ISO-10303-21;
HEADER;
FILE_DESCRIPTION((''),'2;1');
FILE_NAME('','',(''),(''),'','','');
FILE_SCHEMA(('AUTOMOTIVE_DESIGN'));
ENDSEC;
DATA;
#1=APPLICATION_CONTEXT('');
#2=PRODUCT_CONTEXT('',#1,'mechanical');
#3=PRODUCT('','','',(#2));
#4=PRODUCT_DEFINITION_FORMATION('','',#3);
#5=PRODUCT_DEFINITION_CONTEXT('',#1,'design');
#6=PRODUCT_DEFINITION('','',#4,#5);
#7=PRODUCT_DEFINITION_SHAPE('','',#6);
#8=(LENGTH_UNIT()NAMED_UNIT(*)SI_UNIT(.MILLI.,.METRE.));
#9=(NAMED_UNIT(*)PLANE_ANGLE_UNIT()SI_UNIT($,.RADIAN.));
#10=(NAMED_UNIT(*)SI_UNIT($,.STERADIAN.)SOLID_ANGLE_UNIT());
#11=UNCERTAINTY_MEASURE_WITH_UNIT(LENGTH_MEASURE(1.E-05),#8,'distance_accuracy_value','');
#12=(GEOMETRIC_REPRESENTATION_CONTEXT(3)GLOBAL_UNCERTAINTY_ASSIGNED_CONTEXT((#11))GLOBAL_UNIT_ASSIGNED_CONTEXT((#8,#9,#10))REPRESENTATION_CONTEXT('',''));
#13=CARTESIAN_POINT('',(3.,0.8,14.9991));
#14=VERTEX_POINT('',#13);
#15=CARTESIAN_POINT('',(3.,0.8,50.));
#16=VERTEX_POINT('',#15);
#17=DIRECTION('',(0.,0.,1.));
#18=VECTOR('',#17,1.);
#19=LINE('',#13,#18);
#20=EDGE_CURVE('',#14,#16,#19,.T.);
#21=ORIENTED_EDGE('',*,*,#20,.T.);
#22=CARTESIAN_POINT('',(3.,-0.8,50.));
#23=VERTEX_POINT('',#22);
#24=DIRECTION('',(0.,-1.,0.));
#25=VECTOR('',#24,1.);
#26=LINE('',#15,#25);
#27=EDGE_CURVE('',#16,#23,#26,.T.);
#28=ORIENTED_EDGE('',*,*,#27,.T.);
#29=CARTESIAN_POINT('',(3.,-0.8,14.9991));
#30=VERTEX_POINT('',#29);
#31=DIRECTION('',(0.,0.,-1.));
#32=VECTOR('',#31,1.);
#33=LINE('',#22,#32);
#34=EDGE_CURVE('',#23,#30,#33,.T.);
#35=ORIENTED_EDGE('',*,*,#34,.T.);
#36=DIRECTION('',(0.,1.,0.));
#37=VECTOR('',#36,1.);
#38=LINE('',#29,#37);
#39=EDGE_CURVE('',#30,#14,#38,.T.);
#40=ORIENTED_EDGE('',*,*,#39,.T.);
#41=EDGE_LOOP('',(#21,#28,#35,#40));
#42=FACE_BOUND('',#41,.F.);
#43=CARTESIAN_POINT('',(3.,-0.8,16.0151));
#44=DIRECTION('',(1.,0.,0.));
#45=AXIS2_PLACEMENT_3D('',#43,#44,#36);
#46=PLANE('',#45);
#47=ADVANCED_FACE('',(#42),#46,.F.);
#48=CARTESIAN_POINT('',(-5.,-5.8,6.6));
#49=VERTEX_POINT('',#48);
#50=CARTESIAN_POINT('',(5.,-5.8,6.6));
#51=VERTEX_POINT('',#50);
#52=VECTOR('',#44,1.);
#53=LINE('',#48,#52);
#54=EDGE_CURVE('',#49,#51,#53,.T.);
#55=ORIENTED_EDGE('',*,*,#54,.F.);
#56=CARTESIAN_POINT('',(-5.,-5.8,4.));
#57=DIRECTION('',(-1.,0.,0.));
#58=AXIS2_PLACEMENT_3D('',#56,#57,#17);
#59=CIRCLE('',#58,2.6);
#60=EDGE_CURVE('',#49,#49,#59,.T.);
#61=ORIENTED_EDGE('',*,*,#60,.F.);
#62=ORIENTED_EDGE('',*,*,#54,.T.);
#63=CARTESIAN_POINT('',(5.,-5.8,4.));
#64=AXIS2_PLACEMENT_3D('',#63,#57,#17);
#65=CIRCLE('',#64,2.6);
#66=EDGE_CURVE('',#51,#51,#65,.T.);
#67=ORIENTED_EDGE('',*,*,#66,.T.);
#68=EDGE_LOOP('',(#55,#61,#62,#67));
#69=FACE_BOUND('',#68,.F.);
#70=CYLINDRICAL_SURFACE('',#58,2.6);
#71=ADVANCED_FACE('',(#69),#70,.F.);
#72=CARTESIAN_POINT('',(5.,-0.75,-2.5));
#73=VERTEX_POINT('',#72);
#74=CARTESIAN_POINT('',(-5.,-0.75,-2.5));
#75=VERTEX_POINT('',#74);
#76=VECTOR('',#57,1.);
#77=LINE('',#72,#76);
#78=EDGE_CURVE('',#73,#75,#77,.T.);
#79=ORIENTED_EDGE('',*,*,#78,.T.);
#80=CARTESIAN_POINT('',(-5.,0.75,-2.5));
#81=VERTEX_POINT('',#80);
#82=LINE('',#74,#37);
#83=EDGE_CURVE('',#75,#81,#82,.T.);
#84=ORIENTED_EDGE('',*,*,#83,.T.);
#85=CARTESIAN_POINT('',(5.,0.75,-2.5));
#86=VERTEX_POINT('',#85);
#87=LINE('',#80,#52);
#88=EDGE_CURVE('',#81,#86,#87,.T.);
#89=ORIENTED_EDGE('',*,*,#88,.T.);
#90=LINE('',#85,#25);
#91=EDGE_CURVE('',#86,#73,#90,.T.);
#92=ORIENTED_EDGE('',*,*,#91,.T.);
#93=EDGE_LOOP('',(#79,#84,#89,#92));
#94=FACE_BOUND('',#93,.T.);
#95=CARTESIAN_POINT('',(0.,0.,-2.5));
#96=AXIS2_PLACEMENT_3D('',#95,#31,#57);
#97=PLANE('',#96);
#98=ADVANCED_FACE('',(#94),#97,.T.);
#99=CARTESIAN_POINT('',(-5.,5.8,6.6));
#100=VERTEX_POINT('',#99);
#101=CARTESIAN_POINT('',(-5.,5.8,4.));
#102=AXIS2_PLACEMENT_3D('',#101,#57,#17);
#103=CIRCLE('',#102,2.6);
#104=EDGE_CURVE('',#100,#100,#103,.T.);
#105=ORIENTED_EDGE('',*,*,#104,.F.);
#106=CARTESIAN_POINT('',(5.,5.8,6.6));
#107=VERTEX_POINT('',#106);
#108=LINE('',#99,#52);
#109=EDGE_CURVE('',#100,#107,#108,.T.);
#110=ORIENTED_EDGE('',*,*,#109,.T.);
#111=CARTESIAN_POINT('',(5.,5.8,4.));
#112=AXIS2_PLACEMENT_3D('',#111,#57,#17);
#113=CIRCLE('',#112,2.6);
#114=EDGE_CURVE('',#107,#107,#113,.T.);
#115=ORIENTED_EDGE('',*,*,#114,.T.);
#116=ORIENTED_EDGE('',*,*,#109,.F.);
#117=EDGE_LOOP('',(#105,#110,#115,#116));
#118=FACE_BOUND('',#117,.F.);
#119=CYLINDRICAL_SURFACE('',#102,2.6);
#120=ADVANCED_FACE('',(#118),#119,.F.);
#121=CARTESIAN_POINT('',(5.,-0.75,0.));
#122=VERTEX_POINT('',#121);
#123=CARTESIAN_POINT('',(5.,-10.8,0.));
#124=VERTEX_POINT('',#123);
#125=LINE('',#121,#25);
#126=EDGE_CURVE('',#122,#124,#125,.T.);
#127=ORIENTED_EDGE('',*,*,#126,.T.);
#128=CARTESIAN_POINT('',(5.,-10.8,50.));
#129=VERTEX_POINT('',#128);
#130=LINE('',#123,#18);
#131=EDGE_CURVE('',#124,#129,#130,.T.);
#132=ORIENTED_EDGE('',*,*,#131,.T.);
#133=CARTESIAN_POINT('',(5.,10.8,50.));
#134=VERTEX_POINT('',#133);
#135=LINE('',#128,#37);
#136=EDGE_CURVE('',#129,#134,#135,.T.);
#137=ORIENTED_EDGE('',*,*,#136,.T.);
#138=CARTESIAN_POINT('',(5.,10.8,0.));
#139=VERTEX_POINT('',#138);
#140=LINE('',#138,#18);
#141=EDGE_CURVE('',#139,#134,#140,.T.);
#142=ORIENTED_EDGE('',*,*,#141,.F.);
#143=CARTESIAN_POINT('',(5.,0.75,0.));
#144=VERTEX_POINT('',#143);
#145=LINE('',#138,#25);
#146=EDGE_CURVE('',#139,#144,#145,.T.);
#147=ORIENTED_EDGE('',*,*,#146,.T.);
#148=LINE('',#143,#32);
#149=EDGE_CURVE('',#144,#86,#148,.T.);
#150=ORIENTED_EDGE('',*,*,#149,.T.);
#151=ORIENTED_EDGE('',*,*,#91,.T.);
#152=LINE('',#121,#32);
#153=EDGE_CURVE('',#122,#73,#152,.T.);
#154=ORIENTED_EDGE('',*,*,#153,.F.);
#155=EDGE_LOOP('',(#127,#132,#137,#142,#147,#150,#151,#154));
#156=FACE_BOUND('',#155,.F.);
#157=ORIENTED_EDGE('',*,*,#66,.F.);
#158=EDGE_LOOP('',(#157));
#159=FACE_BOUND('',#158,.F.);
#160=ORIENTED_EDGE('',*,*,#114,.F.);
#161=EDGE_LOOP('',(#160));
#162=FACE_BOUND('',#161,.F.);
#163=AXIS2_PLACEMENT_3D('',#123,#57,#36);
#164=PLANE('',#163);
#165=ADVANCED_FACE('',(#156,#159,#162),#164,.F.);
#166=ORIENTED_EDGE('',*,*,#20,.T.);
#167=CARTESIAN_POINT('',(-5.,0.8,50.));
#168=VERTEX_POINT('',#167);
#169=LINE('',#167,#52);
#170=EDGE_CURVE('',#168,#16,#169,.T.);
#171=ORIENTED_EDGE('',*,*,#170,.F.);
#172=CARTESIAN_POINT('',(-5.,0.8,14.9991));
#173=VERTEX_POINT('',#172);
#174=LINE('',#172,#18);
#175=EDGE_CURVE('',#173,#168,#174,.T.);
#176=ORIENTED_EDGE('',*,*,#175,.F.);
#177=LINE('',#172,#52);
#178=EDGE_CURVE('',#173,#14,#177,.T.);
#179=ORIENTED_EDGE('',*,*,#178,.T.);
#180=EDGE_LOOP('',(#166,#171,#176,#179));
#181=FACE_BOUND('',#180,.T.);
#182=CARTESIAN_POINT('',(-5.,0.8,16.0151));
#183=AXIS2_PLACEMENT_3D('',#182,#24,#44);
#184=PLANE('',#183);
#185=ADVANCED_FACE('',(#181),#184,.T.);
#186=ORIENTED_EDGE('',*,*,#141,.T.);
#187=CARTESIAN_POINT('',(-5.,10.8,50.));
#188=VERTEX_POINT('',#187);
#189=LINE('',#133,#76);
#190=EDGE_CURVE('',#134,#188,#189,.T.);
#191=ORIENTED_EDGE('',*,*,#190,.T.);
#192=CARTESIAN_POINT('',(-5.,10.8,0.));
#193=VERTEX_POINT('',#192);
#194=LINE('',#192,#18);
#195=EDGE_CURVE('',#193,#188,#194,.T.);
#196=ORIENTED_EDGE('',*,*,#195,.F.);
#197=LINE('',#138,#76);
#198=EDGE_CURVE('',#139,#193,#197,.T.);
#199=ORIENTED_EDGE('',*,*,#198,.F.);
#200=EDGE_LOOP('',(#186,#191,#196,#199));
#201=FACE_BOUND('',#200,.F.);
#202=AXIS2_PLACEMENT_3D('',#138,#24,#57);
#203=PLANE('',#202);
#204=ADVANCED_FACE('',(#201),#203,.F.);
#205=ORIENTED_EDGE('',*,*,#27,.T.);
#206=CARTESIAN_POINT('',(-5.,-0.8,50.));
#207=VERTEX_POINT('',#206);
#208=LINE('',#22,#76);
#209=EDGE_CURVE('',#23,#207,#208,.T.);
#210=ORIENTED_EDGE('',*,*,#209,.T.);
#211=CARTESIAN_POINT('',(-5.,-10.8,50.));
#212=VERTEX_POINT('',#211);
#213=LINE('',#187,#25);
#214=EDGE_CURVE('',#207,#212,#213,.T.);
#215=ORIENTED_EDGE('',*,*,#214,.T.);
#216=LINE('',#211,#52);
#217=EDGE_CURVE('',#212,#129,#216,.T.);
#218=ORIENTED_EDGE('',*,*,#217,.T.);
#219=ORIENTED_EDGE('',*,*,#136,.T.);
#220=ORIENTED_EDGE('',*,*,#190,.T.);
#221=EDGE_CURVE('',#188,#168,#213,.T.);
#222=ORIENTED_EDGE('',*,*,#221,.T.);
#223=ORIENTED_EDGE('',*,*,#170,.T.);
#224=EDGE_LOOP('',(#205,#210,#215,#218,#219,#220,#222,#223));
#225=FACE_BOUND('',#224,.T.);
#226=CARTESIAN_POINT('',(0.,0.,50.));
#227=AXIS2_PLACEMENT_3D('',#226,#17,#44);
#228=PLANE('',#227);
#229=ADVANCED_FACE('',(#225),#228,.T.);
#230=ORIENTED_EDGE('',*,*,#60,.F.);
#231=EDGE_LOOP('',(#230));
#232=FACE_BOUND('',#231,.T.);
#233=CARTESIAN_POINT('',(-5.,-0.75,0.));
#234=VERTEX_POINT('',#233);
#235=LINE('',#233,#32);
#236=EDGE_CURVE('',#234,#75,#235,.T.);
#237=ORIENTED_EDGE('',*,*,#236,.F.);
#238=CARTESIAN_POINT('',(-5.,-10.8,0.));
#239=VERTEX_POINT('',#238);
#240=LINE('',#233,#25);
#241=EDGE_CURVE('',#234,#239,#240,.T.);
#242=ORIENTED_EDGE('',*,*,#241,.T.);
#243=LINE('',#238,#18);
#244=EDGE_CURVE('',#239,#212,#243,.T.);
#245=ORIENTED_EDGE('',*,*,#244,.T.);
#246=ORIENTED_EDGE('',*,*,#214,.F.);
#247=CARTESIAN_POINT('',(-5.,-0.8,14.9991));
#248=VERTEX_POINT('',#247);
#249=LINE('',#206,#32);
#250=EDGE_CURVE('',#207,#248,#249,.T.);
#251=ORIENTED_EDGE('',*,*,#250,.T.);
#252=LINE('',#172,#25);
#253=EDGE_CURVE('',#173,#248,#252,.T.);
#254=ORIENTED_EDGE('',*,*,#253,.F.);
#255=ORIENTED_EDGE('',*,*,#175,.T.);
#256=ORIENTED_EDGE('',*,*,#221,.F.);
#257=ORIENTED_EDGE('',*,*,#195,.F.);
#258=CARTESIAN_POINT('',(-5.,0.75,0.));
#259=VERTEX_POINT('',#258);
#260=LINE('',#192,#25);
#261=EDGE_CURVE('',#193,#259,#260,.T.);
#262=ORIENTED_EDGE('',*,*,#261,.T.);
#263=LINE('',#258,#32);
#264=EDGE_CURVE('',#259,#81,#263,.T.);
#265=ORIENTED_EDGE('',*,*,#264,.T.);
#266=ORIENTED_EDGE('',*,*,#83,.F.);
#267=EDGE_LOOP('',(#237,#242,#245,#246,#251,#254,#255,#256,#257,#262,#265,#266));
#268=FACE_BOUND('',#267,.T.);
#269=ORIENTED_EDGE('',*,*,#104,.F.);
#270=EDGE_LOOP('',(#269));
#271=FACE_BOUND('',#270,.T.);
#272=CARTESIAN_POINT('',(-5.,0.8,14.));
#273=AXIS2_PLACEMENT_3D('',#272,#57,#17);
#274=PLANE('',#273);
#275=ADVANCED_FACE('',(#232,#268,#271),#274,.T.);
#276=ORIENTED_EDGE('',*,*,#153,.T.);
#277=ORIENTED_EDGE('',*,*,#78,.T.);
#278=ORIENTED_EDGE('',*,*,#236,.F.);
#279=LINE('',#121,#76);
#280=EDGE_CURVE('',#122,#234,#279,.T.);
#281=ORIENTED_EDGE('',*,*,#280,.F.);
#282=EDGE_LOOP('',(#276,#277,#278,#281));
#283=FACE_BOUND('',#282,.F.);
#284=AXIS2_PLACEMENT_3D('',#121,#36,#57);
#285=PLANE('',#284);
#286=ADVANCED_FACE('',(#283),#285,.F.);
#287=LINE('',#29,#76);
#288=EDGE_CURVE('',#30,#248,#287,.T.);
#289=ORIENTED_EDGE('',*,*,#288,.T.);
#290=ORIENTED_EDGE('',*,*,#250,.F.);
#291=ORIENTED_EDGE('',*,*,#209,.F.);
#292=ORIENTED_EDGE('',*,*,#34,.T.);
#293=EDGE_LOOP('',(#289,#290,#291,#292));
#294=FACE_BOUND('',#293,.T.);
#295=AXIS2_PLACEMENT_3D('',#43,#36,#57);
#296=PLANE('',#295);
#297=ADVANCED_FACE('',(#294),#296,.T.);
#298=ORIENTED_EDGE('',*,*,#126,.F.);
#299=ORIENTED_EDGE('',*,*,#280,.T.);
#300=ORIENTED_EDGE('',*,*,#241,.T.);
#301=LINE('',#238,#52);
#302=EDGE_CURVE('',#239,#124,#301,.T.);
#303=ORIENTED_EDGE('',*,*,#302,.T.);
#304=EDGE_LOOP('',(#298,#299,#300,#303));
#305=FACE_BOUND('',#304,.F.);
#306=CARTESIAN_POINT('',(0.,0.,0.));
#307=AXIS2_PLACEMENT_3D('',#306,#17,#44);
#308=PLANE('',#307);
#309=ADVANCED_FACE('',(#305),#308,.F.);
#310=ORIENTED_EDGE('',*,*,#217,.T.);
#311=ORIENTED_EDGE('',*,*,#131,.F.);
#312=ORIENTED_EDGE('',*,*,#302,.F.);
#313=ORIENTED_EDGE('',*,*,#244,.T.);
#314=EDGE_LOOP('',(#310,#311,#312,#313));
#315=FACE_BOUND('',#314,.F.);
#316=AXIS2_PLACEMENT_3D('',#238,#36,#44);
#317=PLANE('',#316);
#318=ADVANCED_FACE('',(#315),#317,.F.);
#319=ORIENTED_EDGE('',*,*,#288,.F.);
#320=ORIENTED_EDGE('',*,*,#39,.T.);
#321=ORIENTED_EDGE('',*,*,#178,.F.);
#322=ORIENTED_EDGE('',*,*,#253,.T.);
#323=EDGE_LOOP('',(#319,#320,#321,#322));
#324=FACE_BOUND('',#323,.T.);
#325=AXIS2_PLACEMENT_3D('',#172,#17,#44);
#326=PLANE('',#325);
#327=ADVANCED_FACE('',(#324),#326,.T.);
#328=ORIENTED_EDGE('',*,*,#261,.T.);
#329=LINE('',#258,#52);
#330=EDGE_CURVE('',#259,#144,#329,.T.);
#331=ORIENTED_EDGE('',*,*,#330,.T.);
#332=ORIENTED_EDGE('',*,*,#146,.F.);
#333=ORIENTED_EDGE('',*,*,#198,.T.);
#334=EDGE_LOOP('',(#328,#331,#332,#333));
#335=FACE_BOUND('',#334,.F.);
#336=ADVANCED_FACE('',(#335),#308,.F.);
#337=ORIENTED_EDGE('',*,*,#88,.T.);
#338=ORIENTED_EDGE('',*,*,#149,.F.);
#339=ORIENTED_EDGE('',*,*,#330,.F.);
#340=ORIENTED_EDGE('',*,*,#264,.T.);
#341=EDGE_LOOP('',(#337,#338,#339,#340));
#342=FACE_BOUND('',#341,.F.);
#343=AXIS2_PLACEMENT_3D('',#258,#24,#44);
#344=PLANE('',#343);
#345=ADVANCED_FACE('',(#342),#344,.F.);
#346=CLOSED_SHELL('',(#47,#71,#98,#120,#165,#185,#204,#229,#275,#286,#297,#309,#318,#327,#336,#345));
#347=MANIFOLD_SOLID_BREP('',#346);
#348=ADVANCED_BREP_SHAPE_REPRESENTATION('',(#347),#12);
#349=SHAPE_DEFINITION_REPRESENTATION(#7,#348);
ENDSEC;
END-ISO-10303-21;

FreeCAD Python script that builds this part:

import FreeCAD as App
import Part
import Sketcher
Q = App.Units.Quantity

doc = App.newDocument("Part")
body = doc.addObject("PartDesign::Body", "Body")

sketch1 = body.newObject("Sketcher::SketchObject", "Sketch")
sketch1.AttachmentSupport = (doc.getObject("XY_Plane"), [""])
sketch1.MapMode = "FlatFace"
sketch1.addGeometry([
    Part.LineSegment(App.Vector(-5, 10.8, 0), App.Vector(-5, -10.8, 0)),
    Part.LineSegment(App.Vector(-5, -10.8, 0), App.Vector(5, -10.8, 0)),
    Part.LineSegment(App.Vector(5, -10.8, 0), App.Vector(5, 10.8, 0)),
    Part.LineSegment(App.Vector(5, 10.8, 0), App.Vector(-5, 10.8, 0)),
], False)
sketch1.addConstraint([
    Sketcher.Constraint("Coincident", 0, 2, 1, 1),
    Sketcher.Constraint("Coincident", 1, 2, 2, 1),
    Sketcher.Constraint("Coincident", 2, 2, 3, 1),
    Sketcher.Constraint("Coincident", 3, 2, 0, 1),
    Sketcher.Constraint("Vertical", 0),
    Sketcher.Constraint("Horizontal", 1),
    Sketcher.Constraint("Vertical", 2),
    Sketcher.Constraint("Horizontal", 3),
    Sketcher.Constraint("Symmetric", 0, 2, 2, 2, -1, 1),
    Sketcher.Constraint("DistanceX", 1, 1, 1, 2, Q("10 mm")),
    Sketcher.Constraint("DistanceY", 0, 2, 0, 1, Q("21.6 mm")),
])
pad1 = body.newObject("PartDesign::Pad", "Pad")
pad1.Profile = sketch1
pad1.Length = 50

sketch2 = body.newObject("Sketcher::SketchObject", "Sketch001")
sketch2.AttachmentSupport = (doc.getObject("XY_Plane"), [""])
sketch2.MapMode = "FlatFace"
sketch2.AttachmentOffset = App.Placement(App.Vector(0, 0, 50), App.Rotation())
sketch2.addGeometry([
    Part.LineSegment(App.Vector(3, 0.8, 0), App.Vector(-5, 0.8, 0)),
    Part.LineSegment(App.Vector(-5, 0.8, 0), App.Vector(-5, -0.8, 0)),
    Part.LineSegment(App.Vector(-5, -0.8, 0), App.Vector(3, -0.8, 0)),
    Part.LineSegment(App.Vector(3, -0.8, 0), App.Vector(3, 0.8, 0)),
], False)
sketch2.addConstraint([
    Sketcher.Constraint("Coincident", 0, 2, 1, 1),
    Sketcher.Constraint("Coincident", 1, 2, 2, 1),
    Sketcher.Constraint("Coincident", 2, 2, 3, 1),
    Sketcher.Constraint("Coincident", 3, 2, 0, 1),
    Sketcher.Constraint("Horizontal", 0),
    Sketcher.Constraint("Vertical", 1),
    Sketcher.Constraint("Horizontal", 2),
    Sketcher.Constraint("Vertical", 3),
    Sketcher.Constraint("DistanceY", 1, 2, 1, 1, Q("1.6 mm")),
    Sketcher.Constraint("DistanceY", -1, 1, 0, 2, Q("0.8 mm")),
    Sketcher.Constraint("DistanceX", 0, 2, 0, 1, Q("8 mm")),
    Sketcher.Constraint("DistanceX", 0, 2, -1, 1, Q("5 mm")),
])
pocket1 = body.newObject("PartDesign::Pocket", "Pocket")
pocket1.Profile = sketch2
pocket1.Length = 36

sketch3 = body.newObject("Sketcher::SketchObject", "Sketch002")
sketch3.AttachmentSupport = (doc.getObject("YZ_Plane"), [""])
sketch3.MapMode = "FlatFace"
sketch3.AttachmentOffset = App.Placement(App.Vector(0, 0, -5), App.Rotation())
sketch3.addGeometry([
    Part.Circle(App.Vector(5.8, 4, 0), App.Vector(0, 0, 1), 2.6),
    Part.Circle(App.Vector(-5.8, 4, 0), App.Vector(0, 0, 1), 2.6),
], False)
sketch3.addConstraint([
    Sketcher.Constraint("Equal", 0, 1),
    Sketcher.Constraint("Symmetric", 0, 3, 1, 3, -2),
    Sketcher.Constraint("Diameter", 0, Q("5.2 mm")),
    Sketcher.Constraint("DistanceY", -1, 1, 0, 3, Q("4 mm")),
    Sketcher.Constraint("DistanceX", -1, 1, 0, 3, Q("5.8 mm")),
])
pocket2 = body.newObject("PartDesign::Pocket", "Pocket001")
pocket2.Profile = sketch3
pocket2.Length = 35
pocket2.Reversed = True

sketch4 = body.newObject("Sketcher::SketchObject", "Sketch003")
sketch4.AttachmentSupport = (doc.getObject("XY_Plane"), [""])
sketch4.MapMode = "FlatFace"
sketch4.addGeometry([
    Part.LineSegment(App.Vector(5, 0.75, 0), App.Vector(5, -0.75, 0)),
    Part.LineSegment(App.Vector(5, -0.75, 0), App.Vector(-5, -0.75, 0)),
    Part.LineSegment(App.Vector(-5, -0.75, 0), App.Vector(-5, 0.75, 0)),
    Part.LineSegment(App.Vector(-5, 0.75, 0), App.Vector(5, 0.75, 0)),
], False)
sketch4.addConstraint([
    Sketcher.Constraint("Coincident", 0, 2, 1, 1),
    Sketcher.Constraint("Coincident", 1, 2, 2, 1),
    Sketcher.Constraint("Coincident", 2, 2, 3, 1),
    Sketcher.Constraint("Coincident", 3, 2, 0, 1),
    Sketcher.Constraint("Vertical", 0),
    Sketcher.Constraint("Horizontal", 1),
    Sketcher.Constraint("Vertical", 2),
    Sketcher.Constraint("Horizontal", 3),
    Sketcher.Constraint("Symmetric", 0, 2, 2, 2, -1, 1),
    Sketcher.Constraint("DistanceX", 1, 2, 1, 1, Q("10 mm")),
    Sketcher.Constraint("DistanceY", 0, 2, 0, 1, Q("1.5 mm")),
])
pad2 = body.newObject("PartDesign::Pad", "Pad001")
pad2.Profile = sketch4
pad2.Length = 2.5
pad2.Reversed = True

sketch5 = body.newObject("Sketcher::SketchObject", "Sketch004")
sketch5.AttachmentSupport = (doc.getObject("XZ_Plane"), [""])
sketch5.MapMode = "FlatFace"
sketch5.AttachmentOffset = App.Placement(App.Vector(0, 0, -0.8), App.Rotation())
sketch5.addGeometry([
    Part.LineSegment(App.Vector(-5, 16.0151, 0), App.Vector(-5, 0, 0)),
    Part.LineSegment(App.Vector(-5, 0, 0), App.Vector(5, 0, 0)),
    Part.LineSegment(App.Vector(5, 0, 0), App.Vector(5, 16.0151, 0)),
    Part.LineSegment(App.Vector(5, 16.0151, 0), App.Vector(-5, 16.0151, 0)),
], False)
sketch5.addConstraint([
    Sketcher.Constraint("Coincident", 0, 2, 1, 1),
    Sketcher.Constraint("Coincident", 1, 2, 2, 1),
    Sketcher.Constraint("Coincident", 2, 2, 3, 1),
    Sketcher.Constraint("Coincident", 3, 2, 0, 1),
    Sketcher.Constraint("Vertical", 0),
    Sketcher.Constraint("Horizontal", 1),
    Sketcher.Constraint("Vertical", 2),
    Sketcher.Constraint("Horizontal", 3),
    Sketcher.Constraint("Symmetric", 0, 2, 1, 2, -1, 1),
    Sketcher.Constraint("DistanceX", 1, 1, 1, 2, Q("10 mm")),
    Sketcher.Constraint("DistanceY", 0, 2, 0, 1, Q("16.015 mm")),
])
pad3 = body.newObject("PartDesign::Pad", "Pad002")
pad3.Profile = sketch5
pad3.Length = 2.5

sketch6 = body.newObject("Sketcher::SketchObject", "Sketch005")
sketch6.AttachmentSupport = (doc.getObject("XY_Plane"), [""])
sketch6.MapMode = "FlatFace"
sketch6.AttachmentOffset = App.Placement(App.Vector(0, 0, 16.0151), App.Rotation())
sketch6.addGeometry([
    Part.LineSegment(App.Vector(3, 0.8, 0), App.Vector(-5, 0.8, 0)),
    Part.LineSegment(App.Vector(-5, 0.8, 0), App.Vector(-5, -0.8, 0)),
    Part.LineSegment(App.Vector(-5, -0.8, 0), App.Vector(3, -0.8, 0)),
    Part.LineSegment(App.Vector(3, -0.8, 0), App.Vector(3, 0.8, 0)),
], False)
sketch6.addConstraint([
    Sketcher.Constraint("Coincident", 0, 2, 1, 1),
    Sketcher.Constraint("Coincident", 1, 2, 2, 1),
    Sketcher.Constraint("Coincident", 2, 2, 3, 1),
    Sketcher.Constraint("Coincident", 3, 2, 0, 1),
    Sketcher.Constraint("Horizontal", 0),
    Sketcher.Constraint("Vertical", 1),
    Sketcher.Constraint("Horizontal", 2),
    Sketcher.Constraint("Vertical", 3),
    Sketcher.Constraint("DistanceX", 0, 2, 0, 1, Q("8 mm")),
    Sketcher.Constraint("DistanceY", 1, 2, 1, 1, Q("1.6 mm")),
    Sketcher.Constraint("DistanceX", 0, 2, -1, 1, Q("5 mm")),
    Sketcher.Constraint("DistanceY", -1, 1, 0, 2, Q("0.8 mm")),
])
pocket3 = body.newObject("PartDesign::Pocket", "Pocket002")
pocket3.Profile = sketch6
pocket3.Length = 1.016

doc.recompute()
